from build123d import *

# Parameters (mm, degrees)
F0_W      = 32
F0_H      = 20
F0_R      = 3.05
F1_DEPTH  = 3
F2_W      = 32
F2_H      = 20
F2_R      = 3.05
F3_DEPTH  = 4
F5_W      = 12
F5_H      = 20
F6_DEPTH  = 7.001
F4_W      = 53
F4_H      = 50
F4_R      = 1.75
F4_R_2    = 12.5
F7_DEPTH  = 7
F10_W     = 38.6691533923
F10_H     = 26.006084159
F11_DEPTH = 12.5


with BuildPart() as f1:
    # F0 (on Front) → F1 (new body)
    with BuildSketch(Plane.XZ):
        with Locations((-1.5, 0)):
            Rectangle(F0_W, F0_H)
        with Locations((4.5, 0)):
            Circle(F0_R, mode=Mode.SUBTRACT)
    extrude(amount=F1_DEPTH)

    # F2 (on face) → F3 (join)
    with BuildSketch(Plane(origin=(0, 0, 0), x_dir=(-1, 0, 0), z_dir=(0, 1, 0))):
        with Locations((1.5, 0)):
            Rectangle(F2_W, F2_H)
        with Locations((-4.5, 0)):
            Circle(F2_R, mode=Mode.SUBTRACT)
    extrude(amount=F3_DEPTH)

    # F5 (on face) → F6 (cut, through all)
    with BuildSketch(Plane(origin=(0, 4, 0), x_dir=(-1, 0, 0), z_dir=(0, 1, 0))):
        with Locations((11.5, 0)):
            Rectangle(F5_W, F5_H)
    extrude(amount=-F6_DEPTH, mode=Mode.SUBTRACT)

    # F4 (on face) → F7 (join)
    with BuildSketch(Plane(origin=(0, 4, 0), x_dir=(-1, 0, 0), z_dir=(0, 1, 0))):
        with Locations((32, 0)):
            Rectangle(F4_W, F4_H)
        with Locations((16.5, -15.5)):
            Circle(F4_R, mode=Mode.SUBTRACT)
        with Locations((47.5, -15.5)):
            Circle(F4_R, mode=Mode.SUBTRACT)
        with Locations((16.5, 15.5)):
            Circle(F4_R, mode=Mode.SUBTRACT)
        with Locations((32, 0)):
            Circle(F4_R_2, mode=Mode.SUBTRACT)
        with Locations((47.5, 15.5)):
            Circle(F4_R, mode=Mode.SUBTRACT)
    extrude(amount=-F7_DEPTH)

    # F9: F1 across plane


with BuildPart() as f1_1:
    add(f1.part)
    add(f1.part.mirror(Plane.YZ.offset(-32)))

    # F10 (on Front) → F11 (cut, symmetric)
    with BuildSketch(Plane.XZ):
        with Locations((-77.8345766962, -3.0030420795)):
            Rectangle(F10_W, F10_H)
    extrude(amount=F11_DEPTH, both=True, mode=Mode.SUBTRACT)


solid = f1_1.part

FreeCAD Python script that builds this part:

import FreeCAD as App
import Part
import Sketcher
from FreeCAD import Vector
Q = App.Units.Quantity


def add_polygon(sketch, points):
    """Adds a closed chain of lines whose ends are joined by coincident constraints."""
    first, n = sketch.GeometryCount, len(points)
    for a, b in zip(points, points[1:] + points[:1]):
        sketch.addGeometry(Part.LineSegment(App.Vector(*a, 0), App.Vector(*b, 0)), False)
    for i in range(n):
        sketch.addConstraint(Sketcher.Constraint("Coincident", first + i, 2, first + (i + 1) % n, 1))

doc = App.newDocument("Part")
params = doc.addObject("Spreadsheet::Sheet", "Params")
for row, (alias, value) in enumerate([
    ("sketch1_diameter", "6.1 mm"),
    ("sketch1_width", "32 mm"),
    ("sketch1_height", "20 mm"),
    ("pad1_length", "3 mm"),
    ("sketch2_diameter", "6.1 mm"),
    ("sketch2_width", "32 mm"),
    ("sketch2_height", "20 mm"),
    ("pad2_length", "4 mm"),
    ("sketch3_width", "12 mm"),
    ("sketch3_height", "20 mm"),
    ("sketch4_diameter", "25 mm"),
    ("sketch4_diameter2", "3.5 mm"),
    ("sketch4_width", "53 mm"),
    ("sketch4_height", "50 mm"),
    ("pad3_length", "7 mm"),
    ("pocket2_length", "25 mm"),
], start=1):
    params.set(f"A{row}", alias)
    params.set(f"B{row}", "=" + value)
    params.setAlias(f"B{row}", alias)

body = doc.addObject("PartDesign::Body", "Body")

sketch1 = body.newObject("Sketcher::SketchObject", "Sketch")
sketch1.AttachmentSupport = (doc.getObject("XZ_Plane"), [""])
sketch1.MapMode = "FlatFace"
add_polygon(sketch1, [(-17.5, 10), (-17.5, -10), (14.5, -10), (14.5, 10)])
sketch1.addGeometry(Part.Circle(Vector(4.5, 0, 0), Vector(0, 0, 1), 3.05), False)
sketch1.addConstraint(Sketcher.Constraint("Vertical", 0))
sketch1.addConstraint(Sketcher.Constraint("Horizontal", 1))
sketch1.addConstraint(Sketcher.Constraint("Vertical", 2))
sketch1.addConstraint(Sketcher.Constraint("Horizontal", 3))
sketch1.addConstraint(Sketcher.Constraint("PointOnObject", 4, 3, -1))
sketch1.addConstraint(Sketcher.Constraint("Diameter", 4, Q("6.1 mm")))
sketch1.addConstraint(Sketcher.Constraint("DistanceX", 1, 1, 1, 2, Q("32 mm")))
sketch1.addConstraint(Sketcher.Constraint("DistanceY", 0, 2, 0, 1, Q("20 mm")))
sketch1.addConstraint(Sketcher.Constraint("DistanceY", 0, 2, -1, 1, Q("10 mm")))
sketch1.addConstraint(Sketcher.Constraint("DistanceX", 0, 2, 4, 3, Q("22 mm")))
sketch1.addConstraint(Sketcher.Constraint("DistanceX", -1, 1, 4, 3, Q("4.5 mm")))
sketch1.setExpression("Constraints[9]", "Params.sketch1_diameter")
sketch1.setExpression("Constraints[10]", "Params.sketch1_width")
sketch1.setExpression("Constraints[11]", "Params.sketch1_height")
pad1 = body.newObject("PartDesign::Pad", "Pad")
pad1.Profile = sketch1
pad1.setExpression("Length", "Params.pad1_length")

sketch2 = body.newObject("Sketcher::SketchObject", "Sketch001")
sketch2.AttachmentSupport = (doc.getObject("XZ_Plane"), [""])
sketch2.MapMode = "FlatFace"
add_polygon(sketch2, [(14.5, 10), (14.5, -10), (-17.5, -10), (-17.5, 10)])
sketch2.addGeometry(Part.Circle(Vector(4.5, 0, 0), Vector(0, 0, 1), 3.05), False)
sketch2.addConstraint(Sketcher.Constraint("Vertical", 0))
sketch2.addConstraint(Sketcher.Constraint("Horizontal", 1))
sketch2.addConstraint(Sketcher.Constraint("Vertical", 2))
sketch2.addConstraint(Sketcher.Constraint("Horizontal", 3))
sketch2.addConstraint(Sketcher.Constraint("PointOnObject", 4, 3, -1))
sketch2.addConstraint(Sketcher.Constraint("Diameter", 4, Q("6.1 mm")))
sketch2.addConstraint(Sketcher.Constraint("DistanceX", 1, 2, 1, 1, Q("32 mm")))
sketch2.addConstraint(Sketcher.Constraint("DistanceY", 0, 2, 0, 1, Q("20 mm")))
sketch2.addConstraint(Sketcher.Constraint("DistanceY", 0, 2, -1, 1, Q("10 mm")))
sketch2.addConstraint(Sketcher.Constraint("DistanceX", 4, 3, 0, 2, Q("10 mm")))
sketch2.addConstraint(Sketcher.Constraint("DistanceX", -1, 1, 4, 3, Q("4.5 mm")))
sketch2.setExpression("Constraints[9]", "Params.sketch2_diameter")
sketch2.setExpression("Constraints[10]", "Params.sketch2_width")
sketch2.setExpression("Constraints[11]", "Params.sketch2_height")
pad2 = body.newObject("PartDesign::Pad", "Pad001")
pad2.Profile = sketch2
pad2.setExpression("Length", "Params.pad2_length")
pad2.Reversed = True

sketch3 = body.newObject("Sketcher::SketchObject", "Sketch002")
sketch3.AttachmentSupport = (doc.getObject("XZ_Plane"), [""])
sketch3.MapMode = "FlatFace"
sketch3.AttachmentOffset = App.Placement(Vector(0, 0, -4), App.Rotation())
add_polygon(sketch3, [(-5.5, 10), (-5.5, -10), (-17.5, -10), (-17.5, 10)])
sketch3.addConstraint(Sketcher.Constraint("Vertical", 0))
sketch3.addConstraint(Sketcher.Constraint("Horizontal", 1))
sketch3.addConstraint(Sketcher.Constraint("Vertical", 2))
sketch3.addConstraint(Sketcher.Constraint("Horizontal", 3))
sketch3.addConstraint(Sketcher.Constraint("DistanceX", 1, 2, 1, 1, Q("12 mm")))
sketch3.addConstraint(Sketcher.Constraint("DistanceY", 0, 2, 0, 1, Q("20 mm")))
sketch3.addConstraint(Sketcher.Constraint("DistanceY", 0, 2, -1, 1, Q("10 mm")))
sketch3.addConstraint(Sketcher.Constraint("DistanceX", 0, 2, -1, 1, Q("5.5 mm")))
sketch3.setExpression("Constraints[8]", "Params.sketch3_width")
sketch3.setExpression("Constraints[9]", "Params.sketch3_height")
pocket1 = body.newObject("PartDesign::Pocket", "Pocket")
pocket1.Profile = sketch3
pocket1.Type = "ThroughAll"
pocket1.Reversed = True

sketch4 = body.newObject("Sketcher::SketchObject", "Sketch003")
sketch4.AttachmentSupport = (doc.getObject("XZ_Plane"), [""])
sketch4.MapMode = "FlatFace"
sketch4.AttachmentOffset = App.Placement(Vector(0, 0, -4), App.Rotation())
add_polygon(sketch4, [(-5.5, 25), (-5.5, -25), (-58.5, -25), (-58.5, 25)])
sketch4.addGeometry(Part.Circle(Vector(-16.5, -15.5, 0), Vector(0, 0, 1), 1.75), False)
sketch4.addGeometry(Part.Circle(Vector(-47.5, -15.5, 0), Vector(0, 0, 1), 1.75), False)
sketch4.addGeometry(Part.Circle(Vector(-16.5, 15.5, 0), Vector(0, 0, 1), 1.75), False)
sketch4.addGeometry(Part.Circle(Vector(-32, 0, 0), Vector(0, 0, 1), 12.5), False)
sketch4.addGeometry(Part.Circle(Vector(-47.5, 15.5, 0), Vector(0, 0, 1), 1.75), False)
sketch4.addConstraint(Sketcher.Constraint("Vertical", 0))
sketch4.addConstraint(Sketcher.Constraint("Horizontal", 1))
sketch4.addConstraint(Sketcher.Constraint("Vertical", 2))
sketch4.addConstraint(Sketcher.Constraint("Horizontal", 3))
sketch4.addConstraint(Sketcher.Constraint("Equal", 4, 5))
sketch4.addConstraint(Sketcher.Constraint("Equal", 5, 6))
sketch4.addConstraint(Sketcher.Constraint("Equal", 6, 8))
sketch4.addConstraint(Sketcher.Constraint("Symmetric", 4, 3, 6, 3, -1))
sketch4.addConstraint(Sketcher.Constraint("Symmetric", 5, 3, 8, 3, -1))
sketch4.addConstraint(Sketcher.Constraint("PointOnObject", 7, 3, -1))
sketch4.addConstraint(Sketcher.Constraint("Horizontal", 4, 3, 5, 3))
sketch4.addConstraint(Sketcher.Constraint("Diameter", 7, Q("25 mm")))
sketch4.addConstraint(Sketcher.Constraint("Diameter", 4, Q("3.5 mm")))
sketch4.addConstraint(Sketcher.Constraint("DistanceX", 1, 2, 1, 1, Q("53 mm")))
sketch4.addConstraint(Sketcher.Constraint("DistanceY", 0, 2, 0, 1, Q("50 mm")))
sketch4.addConstraint(Sketcher.Constraint("DistanceX", 7, 3, -1, 1, Q("32 mm")))
sketch4.addConstraint(Sketcher.Constraint("DistanceY", 0, 2, -1, 1, Q("25 mm")))
sketch4.addConstraint(Sketcher.Constraint("DistanceX", 5, 3, 4, 3, Q("31 mm")))
sketch4.addConstraint(Sketcher.Constraint("DistanceY", 4, 3, 6, 3, Q("31 mm")))
sketch4.addConstraint(Sketcher.Constraint("DistanceX", 4, 3, 0, 2, Q("11 mm")))
sketch4.addConstraint(Sketcher.Constraint("DistanceX", 4, 3, -1, 1, Q("16.5 mm")))
sketch4.setExpression("Constraints[15]", "Params.sketch4_diameter")
sketch4.setExpression("Constraints[16]", "Params.sketch4_diameter2")
sketch4.setExpression("Constraints[17]", "Params.sketch4_width")
sketch4.setExpression("Constraints[18]", "Params.sketch4_height")
pad3 = body.newObject("PartDesign::Pad", "Pad002")
pad3.Profile = sketch4
pad3.setExpression("Length", "Params.pad3_length")
body2 = doc.addObject("PartDesign::Body", "Body001")
doc.recompute()

body2.BaseFeature = body
doc.recompute()

mirroring = doc.addObject("Part::Mirroring", "Mirroring")
mirroring.Source = body
mirroring.Base = Vector(-32, 0, 0)
mirroring.Normal = Vector(1, 0, 0)
body3 = doc.addObject("PartDesign::Body", "Body002")
body3.BaseFeature = mirroring
boolean = body2.newObject("PartDesign::Boolean", "Boolean")
boolean.Type = "Fuse"
boolean.addObjects([body3])
doc.recompute()

sketch5 = body2.newObject("Sketcher::SketchObject", "Sketch004")
sketch5.AttachmentSupport = (doc.getObject("XZ_Plane001"), [""])
sketch5.MapMode = "FlatFace"
add_polygon(sketch5, [(-97.169153, 10), (-97.169153, -16.006084), (-58.5, -16.006084), (-58.5, 10)])
sketch5.addConstraint(Sketcher.Constraint("Vertical", 0))
sketch5.addConstraint(Sketcher.Constraint("Horizontal", 1))
sketch5.addConstraint(Sketcher.Constraint("Vertical", 2))
sketch5.addConstraint(Sketcher.Constraint("Horizontal", 3))
sketch5.addConstraint(Sketcher.Constraint("DistanceY", -1, 1, 2, 2, Q("10 mm")))
sketch5.addConstraint(Sketcher.Constraint("DistanceX", 1, 2, -1, 1, Q("58.5 mm")))
sketch5.addConstraint(Sketcher.Constraint("DistanceX", 1, 1, 1, 2, Q("38.669153 mm")))
sketch5.addConstraint(Sketcher.Constraint("DistanceY", 0, 2, 0, 1, Q("26.006084 mm")))
pocket2 = body2.newObject("PartDesign::Pocket", "Pocket001")
pocket2.Profile = sketch5
pocket2.setExpression("Length", "Params.pocket2_length")
pocket2.Midplane = True
mirroring.Visibility = False

doc.recompute()
